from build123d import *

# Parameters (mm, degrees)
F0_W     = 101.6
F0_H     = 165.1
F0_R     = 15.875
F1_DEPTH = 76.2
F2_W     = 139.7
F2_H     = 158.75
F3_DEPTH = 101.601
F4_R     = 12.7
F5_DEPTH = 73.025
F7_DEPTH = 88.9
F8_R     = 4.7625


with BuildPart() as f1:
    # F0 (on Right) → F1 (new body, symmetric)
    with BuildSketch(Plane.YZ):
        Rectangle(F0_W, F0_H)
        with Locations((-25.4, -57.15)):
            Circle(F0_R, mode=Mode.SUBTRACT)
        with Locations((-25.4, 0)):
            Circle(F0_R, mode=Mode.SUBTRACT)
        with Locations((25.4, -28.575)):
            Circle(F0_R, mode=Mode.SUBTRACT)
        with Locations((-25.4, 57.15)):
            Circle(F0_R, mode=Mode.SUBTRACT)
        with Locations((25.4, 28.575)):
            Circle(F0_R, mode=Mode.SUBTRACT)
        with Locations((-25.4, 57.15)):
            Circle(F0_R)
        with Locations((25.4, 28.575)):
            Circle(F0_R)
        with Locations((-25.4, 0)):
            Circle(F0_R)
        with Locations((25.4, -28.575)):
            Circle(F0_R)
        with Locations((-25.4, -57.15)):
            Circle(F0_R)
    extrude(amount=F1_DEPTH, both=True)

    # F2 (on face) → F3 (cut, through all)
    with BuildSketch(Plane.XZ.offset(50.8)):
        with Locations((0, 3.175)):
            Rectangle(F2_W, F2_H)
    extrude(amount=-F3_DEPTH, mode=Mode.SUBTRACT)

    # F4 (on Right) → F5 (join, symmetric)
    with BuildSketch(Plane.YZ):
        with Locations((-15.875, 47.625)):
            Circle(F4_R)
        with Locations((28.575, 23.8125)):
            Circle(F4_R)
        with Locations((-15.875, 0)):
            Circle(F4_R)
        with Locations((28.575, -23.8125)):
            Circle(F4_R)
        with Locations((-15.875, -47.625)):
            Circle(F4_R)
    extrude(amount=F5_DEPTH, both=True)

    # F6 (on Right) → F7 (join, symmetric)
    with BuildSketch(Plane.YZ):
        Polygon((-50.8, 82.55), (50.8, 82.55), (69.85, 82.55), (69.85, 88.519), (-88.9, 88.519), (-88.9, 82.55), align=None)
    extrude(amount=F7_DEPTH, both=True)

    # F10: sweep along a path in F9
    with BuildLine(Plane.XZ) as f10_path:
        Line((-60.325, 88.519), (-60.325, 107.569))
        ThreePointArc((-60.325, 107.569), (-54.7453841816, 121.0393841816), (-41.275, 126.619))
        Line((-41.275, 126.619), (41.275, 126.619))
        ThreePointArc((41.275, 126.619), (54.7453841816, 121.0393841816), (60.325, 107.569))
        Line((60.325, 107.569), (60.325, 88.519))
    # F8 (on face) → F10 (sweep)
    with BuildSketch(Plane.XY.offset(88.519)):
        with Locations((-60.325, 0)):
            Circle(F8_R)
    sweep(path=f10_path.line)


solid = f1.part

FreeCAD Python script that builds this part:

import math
import FreeCAD as App
import Part
import Sketcher

V = App.Vector
Q = App.Units.Quantity


def add_polygon(sketch, points):
    """Adds a closed chain of lines whose ends are joined by coincident constraints."""
    first, n = sketch.GeometryCount, len(points)
    for a, b in zip(points, points[1:] + points[:1]):
        sketch.addGeometry(Part.LineSegment(App.Vector(*a, 0), App.Vector(*b, 0)), False)
    for i in range(n):
        sketch.addConstraint(Sketcher.Constraint("Coincident", first + i, 2, first + (i + 1) % n, 1))

doc = App.newDocument("Part")
body = doc.addObject("PartDesign::Body", "Body")

sketch1 = body.newObject("Sketcher::SketchObject", "Sketch")
sketch1.AttachmentSupport = (doc.getObject("YZ_Plane"), [""])
sketch1.MapMode = "FlatFace"
add_polygon(sketch1, [(-51, 83), (-51, -83), (51, -83), (51, 83)])
sketch1.addConstraint([
    Sketcher.Constraint("Vertical", 0),
    Sketcher.Constraint("Horizontal", 1),
    Sketcher.Constraint("Vertical", 2),
    Sketcher.Constraint("Horizontal", 3),
    Sketcher.Constraint("Symmetric", 0, 2, 2, 2, -1, 1),
    Sketcher.Constraint("DistanceX", 1, 1, 1, 2, Q("4 in")),
    Sketcher.Constraint("DistanceY", 0, 2, 0, 1, Q("6.5 in")),
])
pad1 = body.newObject("PartDesign::Pad", "Pad")
pad1.Profile = sketch1
pad1.Length = Q("6 in")
pad1.Midplane = True

sketch2 = body.newObject("Sketcher::SketchObject", "Sketch001")
sketch2.AttachmentSupport = (doc.getObject("XZ_Plane"), [""])
sketch2.MapMode = "FlatFace"
sketch2.AttachmentOffset = App.Placement(V(0, 0, 2 * 25.4), App.Rotation())
add_polygon(sketch2, [(-70, 83), (-70, -76), (70, -76), (70, 83)])
sketch2.addConstraint([
    Sketcher.Constraint("Vertical", 0),
    Sketcher.Constraint("Horizontal", 1),
    Sketcher.Constraint("Vertical", 2),
    Sketcher.Constraint("Horizontal", 3),
    Sketcher.Constraint("DistanceX", 1, 1, 1, 2, Q("5.5 in")),
    Sketcher.Constraint("DistanceY", 0, 2, -1, 1, Q("3 in")),
    Sketcher.Constraint("DistanceY", 0, 2, 0, 1, Q("6.25 in")),
    Sketcher.Constraint("DistanceX", 0, 2, -1, 1, Q("2.75 in")),
])
pocket1 = body.newObject("PartDesign::Pocket", "Pocket")
pocket1.Profile = sketch2
pocket1.Type = "ThroughAll"

sketch3 = body.newObject("Sketcher::SketchObject", "Sketch002")
sketch3.AttachmentSupport = (doc.getObject("YZ_Plane"), [""])
sketch3.MapMode = "FlatFace"
sketch3.addGeometry([
    Part.Circle(V(-16, 48, 0), V(0, 0, 1), 13),
    Part.Circle(V(29, 24, 0), V(0, 0, 1), 13),
    Part.Circle(V(-16, 0, 0), V(0, 0, 1), 13),
    Part.Circle(V(29, -24, 0), V(0, 0, 1), 13),
    Part.Circle(V(-16, -48, 0), V(0, 0, 1), 13),
], False)
sketch3.addConstraint([
    Sketcher.Constraint("Equal", 0, 1),
    Sketcher.Constraint("Equal", 1, 2),
    Sketcher.Constraint("Equal", 2, 3),
    Sketcher.Constraint("Equal", 3, 4),
    Sketcher.Constraint("Symmetric", 1, 3, 3, 3, -1),
    Sketcher.Constraint("Symmetric", 0, 3, 4, 3, -1),
    Sketcher.Constraint("PointOnObject", 2, 3, -1),
    Sketcher.Constraint("Vertical", 0, 3, 2, 3),
    Sketcher.Constraint("Diameter", 0, Q("1 in")),
    Sketcher.Constraint("DistanceX", 0, 3, 1, 3, Q("1.75 in")),
    Sketcher.Constraint("DistanceY", 4, 3, 0, 3, Q("3.75 in")),
    Sketcher.Constraint("DistanceX", 0, 3, -1, 1, Q("0.625 in")),
    Sketcher.Constraint("DistanceY", -1, 1, 1, 3, Q("0.9375 in")),
])
pad2 = body.newObject("PartDesign::Pad", "Pad001")
pad2.Profile = sketch3
pad2.Length = Q("5.75 in")
pad2.Midplane = True

sketch4 = body.newObject("Sketcher::SketchObject", "Sketch003")
sketch4.AttachmentSupport = (doc.getObject("YZ_Plane"), [""])
sketch4.MapMode = "FlatFace"
add_polygon(sketch4, [(70, 83), (70, 89), (-89, 89), (-89, 83)])
sketch4.addConstraint([
    Sketcher.Constraint("Vertical", 0),
    Sketcher.Constraint("Horizontal", 1),
    Sketcher.Constraint("Vertical", 2),
    Sketcher.Constraint("Horizontal", 3),
    Sketcher.Constraint("DistanceX", 1, 2, 1, 1, Q("6.25 in")),
    Sketcher.Constraint("DistanceX", 1, 2, -1, 1, Q("3.5 in")),
    Sketcher.Constraint("DistanceY", 0, 1, 0, 2, Q("0.235 in")),
    Sketcher.Constraint("DistanceY", -1, 1, 2, 2, Q("3.25 in")),
])
pad3 = body.newObject("PartDesign::Pad", "Pad002")
pad3.Profile = sketch4
pad3.Length = Q("7 in")
pad3.Midplane = True

sketch5 = body.newObject("Sketcher::SketchObject", "Sketch004")
sketch5.AttachmentSupport = (doc.getObject("XY_Plane"), [""])
sketch5.MapMode = "FlatFace"
sketch5.AttachmentOffset = App.Placement(V(0, 0, 3.485 * 25.4), App.Rotation())
sketch5.addGeometry(Part.Circle(V(-60.3, 0, 0), V(0, 0, 1), 4.8), False)
sketch5.addConstraint([
    Sketcher.Constraint("PointOnObject", 0, 3, -1),
    Sketcher.Constraint("Diameter", 0, Q("0.375 in")),
    Sketcher.Constraint("DistanceX", 0, 3, -1, 1, Q("2.375 in")),
])

sketch6 = body.newObject("Sketcher::SketchObject", "Sketch005")
sketch6.AttachmentSupport = (doc.getObject("XZ_Plane"), [""])
sketch6.MapMode = "FlatFace"
sketch6.addGeometry([
    Part.LineSegment(V(-60, 89, 0), V(-60, 108, 0)),
    Part.ArcOfCircle(Part.Circle(V(-41, 108, 0), V(0, 0, 1), 19), math.radians(90), math.radians(180)),
    Part.LineSegment(V(-41, 127, 0), V(41, 127, 0)),
    Part.ArcOfCircle(Part.Circle(V(41, 108, 0), V(0, 0, 1), 19), math.radians(0), math.radians(90)),
    Part.LineSegment(V(60, 108, 0), V(60, 89, 0)),
], False)
sketch6.addConstraint([
    Sketcher.Constraint("Tangent", 0, 2, 1, 2),
    Sketcher.Constraint("Tangent", 1, 1, 2, 1),
    Sketcher.Constraint("Tangent", 2, 2, 3, 2),
    Sketcher.Constraint("Tangent", 3, 1, 4, 1),
    Sketcher.Constraint("Vertical", 0),
    Sketcher.Constraint("Horizontal", 2),
    Sketcher.Constraint("Vertical", 4),
    Sketcher.Constraint("Equal", 1, 3),
    Sketcher.Constraint("Symmetric", 0, 1, 4, 2, -2),
    Sketcher.Constraint("Radius", 1, Q("0.75 in")),
    Sketcher.Constraint("DistanceX", 0, 1, 3, 3, Q("4 in")),
    Sketcher.Constraint("DistanceY", 0, 1, 0, 2, Q("0.75 in")),
    Sketcher.Constraint("DistanceY", -1, 1, 1, 3, Q("4.235 in")),
])
doc.recompute()

additivepipe = body.newObject("PartDesign::AdditivePipe", "AdditivePipe")
additivepipe.Profile = sketch5
additivepipe.Spine = (sketch6, ["Edge1", "Edge2", "Edge3", "Edge4", "Edge5"])

doc.recompute()
